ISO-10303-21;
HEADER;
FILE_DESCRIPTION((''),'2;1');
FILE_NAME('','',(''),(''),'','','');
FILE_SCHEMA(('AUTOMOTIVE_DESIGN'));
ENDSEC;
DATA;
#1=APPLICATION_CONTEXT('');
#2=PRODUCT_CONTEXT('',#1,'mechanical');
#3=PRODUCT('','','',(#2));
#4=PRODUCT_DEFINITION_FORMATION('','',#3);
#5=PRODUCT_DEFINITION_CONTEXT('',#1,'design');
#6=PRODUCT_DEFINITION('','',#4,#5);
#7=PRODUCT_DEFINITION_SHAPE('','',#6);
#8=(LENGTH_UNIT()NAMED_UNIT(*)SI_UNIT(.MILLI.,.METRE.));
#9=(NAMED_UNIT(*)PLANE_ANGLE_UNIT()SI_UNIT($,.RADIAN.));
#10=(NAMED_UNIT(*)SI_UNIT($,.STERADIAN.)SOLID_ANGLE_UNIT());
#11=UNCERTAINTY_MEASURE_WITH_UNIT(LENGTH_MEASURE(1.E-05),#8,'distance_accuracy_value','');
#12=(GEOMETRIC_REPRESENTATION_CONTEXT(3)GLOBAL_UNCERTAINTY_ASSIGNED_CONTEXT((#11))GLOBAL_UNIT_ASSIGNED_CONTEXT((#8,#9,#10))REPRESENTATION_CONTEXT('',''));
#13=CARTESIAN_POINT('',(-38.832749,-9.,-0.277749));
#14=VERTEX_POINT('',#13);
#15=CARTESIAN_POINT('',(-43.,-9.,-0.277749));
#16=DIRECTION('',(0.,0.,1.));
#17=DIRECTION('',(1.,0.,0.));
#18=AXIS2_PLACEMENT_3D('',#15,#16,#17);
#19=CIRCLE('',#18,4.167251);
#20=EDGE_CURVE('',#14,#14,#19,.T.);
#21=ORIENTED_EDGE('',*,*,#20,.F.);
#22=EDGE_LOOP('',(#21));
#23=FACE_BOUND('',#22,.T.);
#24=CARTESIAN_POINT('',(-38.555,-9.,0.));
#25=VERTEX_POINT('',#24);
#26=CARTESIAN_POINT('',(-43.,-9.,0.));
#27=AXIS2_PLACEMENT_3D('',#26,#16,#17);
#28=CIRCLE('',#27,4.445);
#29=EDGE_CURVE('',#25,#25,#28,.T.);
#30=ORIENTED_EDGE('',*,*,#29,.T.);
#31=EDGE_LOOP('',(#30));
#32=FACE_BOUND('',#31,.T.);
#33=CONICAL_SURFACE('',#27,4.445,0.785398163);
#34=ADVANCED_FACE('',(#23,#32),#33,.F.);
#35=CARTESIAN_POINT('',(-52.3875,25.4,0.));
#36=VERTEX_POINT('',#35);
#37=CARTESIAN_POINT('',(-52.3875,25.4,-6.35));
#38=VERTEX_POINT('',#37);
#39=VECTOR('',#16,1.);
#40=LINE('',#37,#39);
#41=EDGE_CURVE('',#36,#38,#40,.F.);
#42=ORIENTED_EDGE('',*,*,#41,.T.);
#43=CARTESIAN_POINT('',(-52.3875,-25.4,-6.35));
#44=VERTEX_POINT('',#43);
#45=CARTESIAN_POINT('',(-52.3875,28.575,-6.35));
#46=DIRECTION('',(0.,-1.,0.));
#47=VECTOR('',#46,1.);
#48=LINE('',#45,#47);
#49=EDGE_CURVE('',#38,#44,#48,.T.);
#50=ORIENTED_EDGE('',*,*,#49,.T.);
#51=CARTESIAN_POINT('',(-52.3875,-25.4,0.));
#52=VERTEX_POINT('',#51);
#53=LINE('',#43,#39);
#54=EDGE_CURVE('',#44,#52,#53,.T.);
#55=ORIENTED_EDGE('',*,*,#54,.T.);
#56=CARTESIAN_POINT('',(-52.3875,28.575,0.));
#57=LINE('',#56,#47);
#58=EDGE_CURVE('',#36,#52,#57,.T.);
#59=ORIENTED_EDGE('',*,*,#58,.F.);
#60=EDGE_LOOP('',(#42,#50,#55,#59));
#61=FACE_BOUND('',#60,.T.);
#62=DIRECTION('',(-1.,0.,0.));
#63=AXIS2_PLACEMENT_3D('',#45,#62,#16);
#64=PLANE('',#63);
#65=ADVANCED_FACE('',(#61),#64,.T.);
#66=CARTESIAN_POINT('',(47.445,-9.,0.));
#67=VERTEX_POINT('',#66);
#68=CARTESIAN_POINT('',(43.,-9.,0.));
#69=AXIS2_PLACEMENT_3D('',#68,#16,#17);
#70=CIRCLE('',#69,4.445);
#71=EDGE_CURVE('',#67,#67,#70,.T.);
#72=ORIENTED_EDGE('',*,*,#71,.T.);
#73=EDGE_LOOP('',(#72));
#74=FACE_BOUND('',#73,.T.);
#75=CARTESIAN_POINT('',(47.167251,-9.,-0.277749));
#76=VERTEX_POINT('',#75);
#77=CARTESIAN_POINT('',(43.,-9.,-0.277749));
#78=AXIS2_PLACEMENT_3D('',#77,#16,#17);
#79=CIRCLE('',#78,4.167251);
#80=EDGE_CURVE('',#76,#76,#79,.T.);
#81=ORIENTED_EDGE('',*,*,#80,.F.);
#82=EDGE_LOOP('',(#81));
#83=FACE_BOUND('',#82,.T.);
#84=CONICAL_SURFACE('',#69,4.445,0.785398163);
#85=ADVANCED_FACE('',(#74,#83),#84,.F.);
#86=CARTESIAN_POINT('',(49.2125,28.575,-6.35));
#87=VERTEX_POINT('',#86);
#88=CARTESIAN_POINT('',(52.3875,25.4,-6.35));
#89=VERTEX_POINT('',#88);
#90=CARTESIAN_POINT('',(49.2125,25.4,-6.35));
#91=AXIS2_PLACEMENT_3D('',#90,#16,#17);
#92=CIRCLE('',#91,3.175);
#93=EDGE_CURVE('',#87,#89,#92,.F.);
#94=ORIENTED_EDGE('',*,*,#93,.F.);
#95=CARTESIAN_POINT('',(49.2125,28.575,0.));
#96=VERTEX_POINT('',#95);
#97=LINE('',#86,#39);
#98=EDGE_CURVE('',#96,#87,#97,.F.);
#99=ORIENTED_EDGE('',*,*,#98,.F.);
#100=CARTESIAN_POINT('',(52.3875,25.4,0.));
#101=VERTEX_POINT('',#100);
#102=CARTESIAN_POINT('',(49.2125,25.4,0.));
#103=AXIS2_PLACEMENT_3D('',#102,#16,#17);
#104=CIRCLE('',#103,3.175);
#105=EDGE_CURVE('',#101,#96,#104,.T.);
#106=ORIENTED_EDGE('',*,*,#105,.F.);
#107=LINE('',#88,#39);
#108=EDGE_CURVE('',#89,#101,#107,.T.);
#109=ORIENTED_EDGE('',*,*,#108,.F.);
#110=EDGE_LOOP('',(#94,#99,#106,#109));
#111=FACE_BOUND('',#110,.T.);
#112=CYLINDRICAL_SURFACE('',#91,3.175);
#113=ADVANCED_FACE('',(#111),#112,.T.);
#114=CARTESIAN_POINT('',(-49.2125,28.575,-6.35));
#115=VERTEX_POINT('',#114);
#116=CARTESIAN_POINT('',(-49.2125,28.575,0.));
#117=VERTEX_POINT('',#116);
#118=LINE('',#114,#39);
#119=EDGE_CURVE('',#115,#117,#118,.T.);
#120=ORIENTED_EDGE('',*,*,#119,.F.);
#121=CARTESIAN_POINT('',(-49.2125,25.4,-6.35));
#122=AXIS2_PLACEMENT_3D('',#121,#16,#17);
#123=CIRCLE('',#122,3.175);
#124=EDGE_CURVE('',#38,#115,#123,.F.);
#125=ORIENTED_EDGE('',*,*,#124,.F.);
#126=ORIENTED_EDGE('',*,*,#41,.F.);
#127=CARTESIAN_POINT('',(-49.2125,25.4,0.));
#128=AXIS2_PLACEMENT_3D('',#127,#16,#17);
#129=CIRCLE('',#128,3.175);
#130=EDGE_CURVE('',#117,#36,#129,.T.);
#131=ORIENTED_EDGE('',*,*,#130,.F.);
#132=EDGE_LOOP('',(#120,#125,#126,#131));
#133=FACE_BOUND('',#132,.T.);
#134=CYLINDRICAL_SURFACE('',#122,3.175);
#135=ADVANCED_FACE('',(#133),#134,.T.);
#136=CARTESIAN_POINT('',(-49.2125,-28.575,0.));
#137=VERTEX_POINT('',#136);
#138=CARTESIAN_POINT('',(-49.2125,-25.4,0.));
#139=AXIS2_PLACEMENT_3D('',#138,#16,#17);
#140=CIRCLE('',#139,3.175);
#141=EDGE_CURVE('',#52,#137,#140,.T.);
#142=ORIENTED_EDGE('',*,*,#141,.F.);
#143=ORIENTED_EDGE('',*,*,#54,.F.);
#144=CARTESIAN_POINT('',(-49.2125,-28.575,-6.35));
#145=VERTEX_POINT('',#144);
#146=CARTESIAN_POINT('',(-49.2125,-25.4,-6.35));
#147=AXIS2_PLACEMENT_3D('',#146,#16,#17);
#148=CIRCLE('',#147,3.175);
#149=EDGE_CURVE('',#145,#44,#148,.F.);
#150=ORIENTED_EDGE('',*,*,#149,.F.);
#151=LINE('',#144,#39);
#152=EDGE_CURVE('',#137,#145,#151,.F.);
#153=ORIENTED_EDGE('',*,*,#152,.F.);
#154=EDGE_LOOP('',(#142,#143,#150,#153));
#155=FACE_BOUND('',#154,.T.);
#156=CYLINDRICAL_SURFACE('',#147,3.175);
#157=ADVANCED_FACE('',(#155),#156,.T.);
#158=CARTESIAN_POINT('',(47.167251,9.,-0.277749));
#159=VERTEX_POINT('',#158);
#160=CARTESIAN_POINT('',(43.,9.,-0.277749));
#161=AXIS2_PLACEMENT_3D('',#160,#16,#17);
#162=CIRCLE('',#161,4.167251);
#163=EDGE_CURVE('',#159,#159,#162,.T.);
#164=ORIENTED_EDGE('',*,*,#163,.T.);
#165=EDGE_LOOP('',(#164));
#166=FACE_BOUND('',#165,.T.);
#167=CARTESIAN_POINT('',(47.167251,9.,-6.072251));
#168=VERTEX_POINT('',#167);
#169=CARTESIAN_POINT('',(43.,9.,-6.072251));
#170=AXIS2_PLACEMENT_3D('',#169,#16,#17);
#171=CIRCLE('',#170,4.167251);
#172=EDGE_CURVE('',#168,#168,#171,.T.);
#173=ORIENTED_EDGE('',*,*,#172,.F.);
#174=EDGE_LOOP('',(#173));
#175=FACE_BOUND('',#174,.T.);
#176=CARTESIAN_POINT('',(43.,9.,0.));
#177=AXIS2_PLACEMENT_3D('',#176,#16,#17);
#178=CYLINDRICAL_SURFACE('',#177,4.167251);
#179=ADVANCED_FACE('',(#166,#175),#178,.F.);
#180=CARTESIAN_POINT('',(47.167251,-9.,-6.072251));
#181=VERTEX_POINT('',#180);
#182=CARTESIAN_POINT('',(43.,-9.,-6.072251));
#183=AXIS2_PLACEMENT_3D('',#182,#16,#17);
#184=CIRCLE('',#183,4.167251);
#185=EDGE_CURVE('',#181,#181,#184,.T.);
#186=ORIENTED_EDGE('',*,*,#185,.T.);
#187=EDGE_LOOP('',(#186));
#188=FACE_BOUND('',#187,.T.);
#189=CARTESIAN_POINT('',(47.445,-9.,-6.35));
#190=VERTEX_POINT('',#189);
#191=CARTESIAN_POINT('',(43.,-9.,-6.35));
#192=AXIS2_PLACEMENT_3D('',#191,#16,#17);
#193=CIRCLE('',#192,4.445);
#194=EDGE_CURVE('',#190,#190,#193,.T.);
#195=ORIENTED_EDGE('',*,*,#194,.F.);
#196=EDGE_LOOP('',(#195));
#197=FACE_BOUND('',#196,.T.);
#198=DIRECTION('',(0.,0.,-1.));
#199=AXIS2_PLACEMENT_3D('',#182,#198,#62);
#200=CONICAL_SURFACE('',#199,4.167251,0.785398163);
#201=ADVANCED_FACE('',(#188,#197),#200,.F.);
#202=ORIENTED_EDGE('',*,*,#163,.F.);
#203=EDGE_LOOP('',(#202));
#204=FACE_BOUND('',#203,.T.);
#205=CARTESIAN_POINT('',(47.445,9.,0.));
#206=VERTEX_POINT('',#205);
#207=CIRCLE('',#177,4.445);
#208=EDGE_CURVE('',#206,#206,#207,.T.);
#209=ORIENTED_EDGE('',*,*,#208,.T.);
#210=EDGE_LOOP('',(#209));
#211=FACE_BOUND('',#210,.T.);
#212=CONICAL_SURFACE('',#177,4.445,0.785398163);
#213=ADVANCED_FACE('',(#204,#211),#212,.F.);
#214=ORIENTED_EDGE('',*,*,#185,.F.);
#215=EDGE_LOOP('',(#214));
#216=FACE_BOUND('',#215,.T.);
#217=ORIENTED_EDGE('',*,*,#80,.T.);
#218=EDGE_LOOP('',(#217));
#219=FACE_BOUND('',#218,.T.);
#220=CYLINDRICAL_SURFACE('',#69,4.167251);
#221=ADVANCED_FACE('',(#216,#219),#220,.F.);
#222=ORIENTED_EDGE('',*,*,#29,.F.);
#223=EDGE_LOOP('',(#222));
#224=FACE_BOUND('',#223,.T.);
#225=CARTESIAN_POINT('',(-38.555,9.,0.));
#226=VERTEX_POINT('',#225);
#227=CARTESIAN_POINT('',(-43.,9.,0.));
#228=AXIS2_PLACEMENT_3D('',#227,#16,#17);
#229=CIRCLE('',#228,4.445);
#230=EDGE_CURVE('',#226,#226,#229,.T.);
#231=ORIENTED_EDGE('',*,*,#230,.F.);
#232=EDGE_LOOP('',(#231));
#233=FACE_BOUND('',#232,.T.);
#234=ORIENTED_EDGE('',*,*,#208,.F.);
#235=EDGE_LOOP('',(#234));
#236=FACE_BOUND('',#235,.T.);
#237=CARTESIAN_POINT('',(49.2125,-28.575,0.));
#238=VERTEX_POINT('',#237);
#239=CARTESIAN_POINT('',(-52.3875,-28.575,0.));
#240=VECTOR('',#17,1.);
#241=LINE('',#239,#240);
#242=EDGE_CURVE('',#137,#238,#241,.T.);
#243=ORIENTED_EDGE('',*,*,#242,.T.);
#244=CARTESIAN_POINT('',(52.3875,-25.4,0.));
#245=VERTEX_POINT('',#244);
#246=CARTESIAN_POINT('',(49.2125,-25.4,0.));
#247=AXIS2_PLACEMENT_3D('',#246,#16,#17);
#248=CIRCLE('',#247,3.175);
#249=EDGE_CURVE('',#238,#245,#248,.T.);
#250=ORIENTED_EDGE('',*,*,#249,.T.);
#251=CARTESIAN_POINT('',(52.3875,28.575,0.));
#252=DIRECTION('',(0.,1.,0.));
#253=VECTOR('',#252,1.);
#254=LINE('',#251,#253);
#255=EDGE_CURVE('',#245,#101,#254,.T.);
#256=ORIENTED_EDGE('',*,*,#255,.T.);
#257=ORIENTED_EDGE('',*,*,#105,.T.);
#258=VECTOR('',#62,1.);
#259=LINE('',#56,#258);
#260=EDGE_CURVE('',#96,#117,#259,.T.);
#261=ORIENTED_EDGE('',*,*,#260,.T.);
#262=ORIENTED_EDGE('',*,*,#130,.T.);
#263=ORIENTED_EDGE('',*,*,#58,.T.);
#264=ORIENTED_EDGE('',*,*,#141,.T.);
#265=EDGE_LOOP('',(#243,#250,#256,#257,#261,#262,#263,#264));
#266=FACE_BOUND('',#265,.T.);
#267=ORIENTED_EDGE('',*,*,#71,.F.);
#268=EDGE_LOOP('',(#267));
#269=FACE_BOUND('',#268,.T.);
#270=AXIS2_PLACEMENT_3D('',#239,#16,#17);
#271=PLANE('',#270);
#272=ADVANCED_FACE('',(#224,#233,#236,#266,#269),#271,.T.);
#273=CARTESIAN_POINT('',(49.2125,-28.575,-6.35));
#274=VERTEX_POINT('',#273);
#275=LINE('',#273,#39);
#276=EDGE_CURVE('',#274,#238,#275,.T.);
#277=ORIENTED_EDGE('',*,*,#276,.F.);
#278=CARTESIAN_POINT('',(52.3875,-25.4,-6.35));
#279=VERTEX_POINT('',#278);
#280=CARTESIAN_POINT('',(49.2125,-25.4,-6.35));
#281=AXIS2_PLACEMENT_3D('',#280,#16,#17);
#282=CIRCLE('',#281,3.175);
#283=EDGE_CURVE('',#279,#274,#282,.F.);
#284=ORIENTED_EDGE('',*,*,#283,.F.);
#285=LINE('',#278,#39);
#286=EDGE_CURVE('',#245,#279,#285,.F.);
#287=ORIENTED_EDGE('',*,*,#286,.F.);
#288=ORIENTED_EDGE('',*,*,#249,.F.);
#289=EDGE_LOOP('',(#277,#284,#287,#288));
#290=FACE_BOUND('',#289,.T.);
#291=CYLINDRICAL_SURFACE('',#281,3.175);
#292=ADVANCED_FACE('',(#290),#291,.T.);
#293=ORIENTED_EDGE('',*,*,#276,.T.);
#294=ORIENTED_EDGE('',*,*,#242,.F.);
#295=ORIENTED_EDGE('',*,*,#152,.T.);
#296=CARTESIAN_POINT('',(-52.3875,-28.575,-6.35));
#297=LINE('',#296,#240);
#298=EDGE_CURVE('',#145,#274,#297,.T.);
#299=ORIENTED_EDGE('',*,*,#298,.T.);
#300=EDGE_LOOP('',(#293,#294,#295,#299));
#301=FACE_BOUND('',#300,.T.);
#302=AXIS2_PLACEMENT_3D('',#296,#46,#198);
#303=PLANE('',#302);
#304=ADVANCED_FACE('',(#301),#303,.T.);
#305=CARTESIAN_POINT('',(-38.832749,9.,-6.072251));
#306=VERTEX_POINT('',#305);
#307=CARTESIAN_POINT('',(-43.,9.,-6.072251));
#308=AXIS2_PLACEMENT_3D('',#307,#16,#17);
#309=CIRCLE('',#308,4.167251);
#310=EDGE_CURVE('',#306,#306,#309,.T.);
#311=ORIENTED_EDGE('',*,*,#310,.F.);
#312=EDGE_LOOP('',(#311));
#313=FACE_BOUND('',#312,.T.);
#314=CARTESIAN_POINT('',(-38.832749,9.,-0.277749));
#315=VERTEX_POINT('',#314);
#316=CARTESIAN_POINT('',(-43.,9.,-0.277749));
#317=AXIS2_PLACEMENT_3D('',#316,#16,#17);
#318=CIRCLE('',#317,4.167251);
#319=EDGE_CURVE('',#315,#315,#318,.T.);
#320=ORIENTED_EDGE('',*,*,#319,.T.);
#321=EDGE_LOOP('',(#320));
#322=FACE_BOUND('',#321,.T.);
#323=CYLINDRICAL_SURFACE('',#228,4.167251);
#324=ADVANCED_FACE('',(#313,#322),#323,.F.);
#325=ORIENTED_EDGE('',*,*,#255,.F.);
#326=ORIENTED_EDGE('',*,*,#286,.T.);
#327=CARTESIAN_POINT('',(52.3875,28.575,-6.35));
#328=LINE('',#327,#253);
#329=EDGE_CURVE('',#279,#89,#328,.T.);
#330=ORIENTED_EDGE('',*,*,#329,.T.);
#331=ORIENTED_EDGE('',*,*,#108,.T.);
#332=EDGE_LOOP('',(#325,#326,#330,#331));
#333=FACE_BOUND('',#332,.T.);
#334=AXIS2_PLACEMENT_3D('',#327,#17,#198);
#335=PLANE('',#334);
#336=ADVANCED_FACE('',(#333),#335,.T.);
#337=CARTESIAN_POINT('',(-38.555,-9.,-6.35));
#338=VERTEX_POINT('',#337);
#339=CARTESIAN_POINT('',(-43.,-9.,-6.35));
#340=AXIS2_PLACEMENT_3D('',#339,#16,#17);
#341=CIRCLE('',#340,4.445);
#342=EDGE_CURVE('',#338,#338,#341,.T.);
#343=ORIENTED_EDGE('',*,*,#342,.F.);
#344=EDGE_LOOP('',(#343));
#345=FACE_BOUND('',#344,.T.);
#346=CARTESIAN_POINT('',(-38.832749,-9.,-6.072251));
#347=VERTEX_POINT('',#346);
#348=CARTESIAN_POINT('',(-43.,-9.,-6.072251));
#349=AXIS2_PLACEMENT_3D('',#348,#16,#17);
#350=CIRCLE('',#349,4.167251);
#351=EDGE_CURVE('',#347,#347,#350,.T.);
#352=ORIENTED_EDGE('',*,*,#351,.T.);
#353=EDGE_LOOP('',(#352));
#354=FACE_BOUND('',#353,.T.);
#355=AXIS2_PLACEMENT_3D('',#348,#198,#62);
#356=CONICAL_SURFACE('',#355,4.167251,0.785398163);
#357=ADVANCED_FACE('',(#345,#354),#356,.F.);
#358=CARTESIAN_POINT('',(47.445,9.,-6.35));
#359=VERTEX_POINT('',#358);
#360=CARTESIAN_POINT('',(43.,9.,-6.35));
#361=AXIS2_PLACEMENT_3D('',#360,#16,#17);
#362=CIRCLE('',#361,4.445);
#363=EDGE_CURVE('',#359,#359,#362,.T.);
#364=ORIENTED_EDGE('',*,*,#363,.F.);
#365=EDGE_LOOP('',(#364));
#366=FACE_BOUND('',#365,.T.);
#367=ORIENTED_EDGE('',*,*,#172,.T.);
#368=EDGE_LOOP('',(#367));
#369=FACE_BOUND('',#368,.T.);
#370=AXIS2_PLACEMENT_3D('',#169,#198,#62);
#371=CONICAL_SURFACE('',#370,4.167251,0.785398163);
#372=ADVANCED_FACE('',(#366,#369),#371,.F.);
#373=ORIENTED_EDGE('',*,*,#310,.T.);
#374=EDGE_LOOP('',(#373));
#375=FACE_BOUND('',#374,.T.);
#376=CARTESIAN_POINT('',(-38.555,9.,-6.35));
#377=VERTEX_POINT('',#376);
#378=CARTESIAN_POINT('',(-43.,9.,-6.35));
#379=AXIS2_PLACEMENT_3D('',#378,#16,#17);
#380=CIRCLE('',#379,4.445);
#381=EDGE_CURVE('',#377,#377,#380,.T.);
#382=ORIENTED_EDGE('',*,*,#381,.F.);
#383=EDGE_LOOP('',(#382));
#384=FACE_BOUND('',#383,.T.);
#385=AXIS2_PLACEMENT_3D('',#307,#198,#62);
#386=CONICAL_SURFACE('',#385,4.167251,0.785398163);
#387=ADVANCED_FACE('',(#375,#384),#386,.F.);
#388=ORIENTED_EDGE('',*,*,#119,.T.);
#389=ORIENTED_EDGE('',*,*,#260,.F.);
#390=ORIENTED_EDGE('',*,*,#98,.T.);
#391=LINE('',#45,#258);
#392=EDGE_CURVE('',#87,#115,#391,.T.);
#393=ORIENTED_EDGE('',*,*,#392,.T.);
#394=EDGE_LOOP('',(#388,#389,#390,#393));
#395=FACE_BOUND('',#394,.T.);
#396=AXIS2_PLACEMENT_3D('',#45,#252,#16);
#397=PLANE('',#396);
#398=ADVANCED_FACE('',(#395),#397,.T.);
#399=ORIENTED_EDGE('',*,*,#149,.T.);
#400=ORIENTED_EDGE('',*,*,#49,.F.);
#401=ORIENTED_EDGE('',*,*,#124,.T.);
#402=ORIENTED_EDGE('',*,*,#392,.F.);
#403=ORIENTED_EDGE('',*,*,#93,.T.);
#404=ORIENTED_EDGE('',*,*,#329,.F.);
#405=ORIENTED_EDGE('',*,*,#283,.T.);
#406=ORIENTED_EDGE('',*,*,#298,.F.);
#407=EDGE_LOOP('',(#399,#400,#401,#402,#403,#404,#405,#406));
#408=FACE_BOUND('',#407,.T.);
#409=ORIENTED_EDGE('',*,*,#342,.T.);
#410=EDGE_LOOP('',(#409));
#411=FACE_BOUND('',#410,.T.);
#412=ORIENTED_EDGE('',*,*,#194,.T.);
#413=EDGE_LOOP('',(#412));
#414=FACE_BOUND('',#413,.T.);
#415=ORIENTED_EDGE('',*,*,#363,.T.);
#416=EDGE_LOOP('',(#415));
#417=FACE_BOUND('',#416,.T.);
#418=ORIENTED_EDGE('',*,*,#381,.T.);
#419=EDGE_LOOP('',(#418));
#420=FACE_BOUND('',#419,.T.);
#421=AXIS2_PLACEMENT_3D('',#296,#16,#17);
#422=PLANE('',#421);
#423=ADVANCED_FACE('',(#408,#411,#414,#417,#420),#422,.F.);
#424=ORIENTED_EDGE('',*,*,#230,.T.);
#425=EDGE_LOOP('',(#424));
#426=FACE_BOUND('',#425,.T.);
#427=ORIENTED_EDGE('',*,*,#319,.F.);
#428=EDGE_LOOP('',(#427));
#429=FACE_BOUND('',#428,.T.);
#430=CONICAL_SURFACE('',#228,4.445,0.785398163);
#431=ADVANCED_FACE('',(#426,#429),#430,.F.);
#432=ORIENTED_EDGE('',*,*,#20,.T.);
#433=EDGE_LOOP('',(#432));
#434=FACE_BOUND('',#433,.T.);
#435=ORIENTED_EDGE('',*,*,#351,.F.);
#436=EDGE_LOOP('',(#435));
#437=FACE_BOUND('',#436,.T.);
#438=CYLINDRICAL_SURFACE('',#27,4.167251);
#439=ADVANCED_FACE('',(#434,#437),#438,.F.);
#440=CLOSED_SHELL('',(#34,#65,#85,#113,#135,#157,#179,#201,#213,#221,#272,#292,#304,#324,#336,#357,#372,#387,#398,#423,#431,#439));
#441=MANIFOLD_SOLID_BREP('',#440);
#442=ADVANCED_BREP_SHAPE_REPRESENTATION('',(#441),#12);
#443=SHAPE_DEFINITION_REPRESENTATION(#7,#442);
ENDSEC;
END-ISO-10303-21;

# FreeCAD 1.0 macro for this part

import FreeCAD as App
import Part
import Sketcher

V = App.Vector
Q = App.Units.Quantity


def edges_at(feature, points):
    """Names of the edges that pass closest to the given points."""
    edges = feature.Shape.Edges
    near = lambda p: min(range(len(edges)), key=lambda i: edges[i].distToShape(Part.Vertex(*p))[0])
    return sorted({f"Edge{near(p) + 1}" for p in points})


def add_polygon(sketch, points):
    """Adds a closed chain of lines whose ends are joined by coincident constraints."""
    first, n = sketch.GeometryCount, len(points)
    for a, b in zip(points, points[1:] + points[:1]):
        sketch.addGeometry(Part.LineSegment(App.Vector(*a, 0), App.Vector(*b, 0)), False)
    for i in range(n):
        sketch.addConstraint(Sketcher.Constraint("Coincident", first + i, 2, first + (i + 1) % n, 1))

doc = App.newDocument("Part")
body = doc.addObject("PartDesign::Body", "Body")

# Sketch on XY plane
sketch1 = doc.addObject("Sketcher::SketchObject", "Sketch")
body.addObject(sketch1)
sketch1.AttachmentSupport = (doc.XY_Plane, [""])
sketch1.MapMode = "FlatFace"
add_polygon(sketch1, [(-52, 29), (-52, -29), (52, -29), (52, 29)])  # lines 0-3
sketch1.addConstraint(Sketcher.Constraint("Vertical", 0))
sketch1.addConstraint(Sketcher.Constraint("Horizontal", 1))
sketch1.addConstraint(Sketcher.Constraint("Vertical", 2))
sketch1.addConstraint(Sketcher.Constraint("Horizontal", 3))
sketch1.addConstraint(Sketcher.Constraint("Symmetric", 0, 2, 2, 2, -1, 1))
sketch1.addConstraint(Sketcher.Constraint("DistanceY", 0, 2, 0, 1, Q("2.25 in")))
sketch1.addConstraint(Sketcher.Constraint("DistanceX", 1, 1, 1, 2, Q("4.125 in")))
pad1 = doc.addObject("PartDesign::Pad", "Pad")
body.addObject(pad1)
pad1.Profile = sketch1
pad1.Length = Q("0.25 in")
pad1.Reversed = True

# Sketch on YZ plane
sketch2 = doc.addObject("Sketcher::SketchObject", "Sketch001")
body.addObject(sketch2)
sketch2.AttachmentSupport = (doc.YZ_Plane, [""])
sketch2.MapMode = "FlatFace"
sketch2.AttachmentOffset = App.Placement(V(0, 0, 43), App.Rotation())
add_polygon(sketch2, [(9, -6.35), (9, 0), (4.55, 0), (4.83, -0.28), (4.83, -6.07), (4.55, -6.35)])  # lines 0-5
sketch2.addGeometry(Part.LineSegment(V(9, 0, 0), V(9, -6.35, 0)), True)  # axis
sketch2.addConstraint(Sketcher.Constraint("Vertical", 0))
sketch2.addConstraint(Sketcher.Constraint("Horizontal", 1))
sketch2.addConstraint(Sketcher.Constraint("Vertical", 3))
sketch2.addConstraint(Sketcher.Constraint("Horizontal", 5))
sketch2.addConstraint(Sketcher.Constraint("Vertical", 6))
sketch2.addConstraint(Sketcher.Constraint("Coincident", 6, 1, 0, 2))
sketch2.addConstraint(Sketcher.Constraint("PointOnObject", 0, 2, -1))
sketch2.addConstraint(Sketcher.Constraint("Perpendicular", 2, 4))
sketch2.addConstraint(Sketcher.Constraint("Horizontal", 4, 2, 6, 2))
sketch2.addConstraint(Sketcher.Constraint("Vertical", 1, 2, 4, 2))
sketch2.addConstraint(Sketcher.Constraint("Equal", 2, 4))
sketch2.addConstraint(Sketcher.Constraint("DistanceY", 0, 1, 0, 2, Q("0.25 in")))
sketch2.addConstraint(Sketcher.Constraint("DistanceX", 1, 2, 1, 1, Q("0.175 in")))
sketch2.addConstraint(Sketcher.Constraint("DistanceY", 3, 2, 3, 1, 5.794502))
sketch2.addConstraint(Sketcher.Constraint("DistanceX", -1, 1, 0, 2, 9.0))
groove = doc.addObject("PartDesign::Groove", "Groove")
body.addObject(groove)
groove.Profile = sketch2
groove.ReferenceAxis = (sketch2, ["Axis0"])
groove.Angle = 360
doc.recompute()

linearpattern = doc.addObject("PartDesign::LinearPattern", "LinearPattern")
body.addObject(linearpattern)
linearpattern.Originals = [groove]
linearpattern.Direction = (doc.Y_Axis, [""])
linearpattern.Mode = "offset"
linearpattern.Offset = 18
linearpattern.Occurrences = 2
linearpattern.Reversed = True
body.Tip = linearpattern
doc.recompute()

mirrored = doc.addObject("PartDesign::Mirrored", "Mirrored")
body.addObject(mirrored)
mirrored.Originals = [groove]
mirrored.MirrorPlane = (doc.YZ_Plane, [""])
body.Tip = mirrored

# Sketch on YZ plane
sketch3 = doc.addObject("Sketcher::SketchObject", "Sketch002")
body.addObject(sketch3)
sketch3.AttachmentSupport = (doc.YZ_Plane, [""])
sketch3.MapMode = "FlatFace"
sketch3.AttachmentOffset = App.Placement(V(0, 0, -43), App.Rotation())
add_polygon(sketch3, [(-9, 0), (-9, -6.35), (-13.45, -6.35), (-13.17, -6.07), (-13.17, -0.28), (-13.45, 0)])  # lines 0-5
sketch3.addGeometry(Part.LineSegment(V(-9, -6.35, 0), V(-9, 0, 0)), True)  # axis
sketch3.addConstraint(Sketcher.Constraint("Vertical", 0))
sketch3.addConstraint(Sketcher.Constraint("Horizontal", 1))
sketch3.addConstraint(Sketcher.Constraint("Vertical", 3))
sketch3.addConstraint(Sketcher.Constraint("Horizontal", 5))
sketch3.addConstraint(Sketcher.Constraint("Vertical", 6))
sketch3.addConstraint(Sketcher.Constraint("Coincident", 6, 1, 0, 2))
sketch3.addConstraint(Sketcher.Constraint("PointOnObject", 4, 2, -1))
sketch3.addConstraint(Sketcher.Constraint("PointOnObject", 6, 2, -1))
sketch3.addConstraint(Sketcher.Constraint("Perpendicular", 2, 4))
sketch3.addConstraint(Sketcher.Constraint("Vertical", 1, 2, 4, 2))
sketch3.addConstraint(Sketcher.Constraint("Equal", 2, 4))
sketch3.addConstraint(Sketcher.Constraint("DistanceY", 0, 2, 0, 1, Q("0.25 in")))
sketch3.addConstraint(Sketcher.Constraint("DistanceX", 1, 2, 1, 1, Q("0.175 in")))
sketch3.addConstraint(Sketcher.Constraint("DistanceY", 3, 1, 3, 2, 5.794502))
sketch3.addConstraint(Sketcher.Constraint("DistanceX", 0, 2, -1, 1, 9.0))
groove2 = doc.addObject("PartDesign::Groove", "Groove001")
body.addObject(groove2)
groove2.Profile = sketch3
groove2.ReferenceAxis = (sketch3, ["Axis0"])
groove2.Angle = 360
doc.recompute()

fillet = doc.addObject("PartDesign::Fillet", "Fillet")
body.addObject(fillet)
fillet.Base = (groove2, edges_at(groove2, [
    (-52.388, 28.575, -3.175),
    (52.388, 28.575, -3.175),
    (52.388, -28.575, -3.175),
    (-52.388, -28.575, -3.175),
]))
fillet.Radius = Q("0.125 in")

doc.recompute()
